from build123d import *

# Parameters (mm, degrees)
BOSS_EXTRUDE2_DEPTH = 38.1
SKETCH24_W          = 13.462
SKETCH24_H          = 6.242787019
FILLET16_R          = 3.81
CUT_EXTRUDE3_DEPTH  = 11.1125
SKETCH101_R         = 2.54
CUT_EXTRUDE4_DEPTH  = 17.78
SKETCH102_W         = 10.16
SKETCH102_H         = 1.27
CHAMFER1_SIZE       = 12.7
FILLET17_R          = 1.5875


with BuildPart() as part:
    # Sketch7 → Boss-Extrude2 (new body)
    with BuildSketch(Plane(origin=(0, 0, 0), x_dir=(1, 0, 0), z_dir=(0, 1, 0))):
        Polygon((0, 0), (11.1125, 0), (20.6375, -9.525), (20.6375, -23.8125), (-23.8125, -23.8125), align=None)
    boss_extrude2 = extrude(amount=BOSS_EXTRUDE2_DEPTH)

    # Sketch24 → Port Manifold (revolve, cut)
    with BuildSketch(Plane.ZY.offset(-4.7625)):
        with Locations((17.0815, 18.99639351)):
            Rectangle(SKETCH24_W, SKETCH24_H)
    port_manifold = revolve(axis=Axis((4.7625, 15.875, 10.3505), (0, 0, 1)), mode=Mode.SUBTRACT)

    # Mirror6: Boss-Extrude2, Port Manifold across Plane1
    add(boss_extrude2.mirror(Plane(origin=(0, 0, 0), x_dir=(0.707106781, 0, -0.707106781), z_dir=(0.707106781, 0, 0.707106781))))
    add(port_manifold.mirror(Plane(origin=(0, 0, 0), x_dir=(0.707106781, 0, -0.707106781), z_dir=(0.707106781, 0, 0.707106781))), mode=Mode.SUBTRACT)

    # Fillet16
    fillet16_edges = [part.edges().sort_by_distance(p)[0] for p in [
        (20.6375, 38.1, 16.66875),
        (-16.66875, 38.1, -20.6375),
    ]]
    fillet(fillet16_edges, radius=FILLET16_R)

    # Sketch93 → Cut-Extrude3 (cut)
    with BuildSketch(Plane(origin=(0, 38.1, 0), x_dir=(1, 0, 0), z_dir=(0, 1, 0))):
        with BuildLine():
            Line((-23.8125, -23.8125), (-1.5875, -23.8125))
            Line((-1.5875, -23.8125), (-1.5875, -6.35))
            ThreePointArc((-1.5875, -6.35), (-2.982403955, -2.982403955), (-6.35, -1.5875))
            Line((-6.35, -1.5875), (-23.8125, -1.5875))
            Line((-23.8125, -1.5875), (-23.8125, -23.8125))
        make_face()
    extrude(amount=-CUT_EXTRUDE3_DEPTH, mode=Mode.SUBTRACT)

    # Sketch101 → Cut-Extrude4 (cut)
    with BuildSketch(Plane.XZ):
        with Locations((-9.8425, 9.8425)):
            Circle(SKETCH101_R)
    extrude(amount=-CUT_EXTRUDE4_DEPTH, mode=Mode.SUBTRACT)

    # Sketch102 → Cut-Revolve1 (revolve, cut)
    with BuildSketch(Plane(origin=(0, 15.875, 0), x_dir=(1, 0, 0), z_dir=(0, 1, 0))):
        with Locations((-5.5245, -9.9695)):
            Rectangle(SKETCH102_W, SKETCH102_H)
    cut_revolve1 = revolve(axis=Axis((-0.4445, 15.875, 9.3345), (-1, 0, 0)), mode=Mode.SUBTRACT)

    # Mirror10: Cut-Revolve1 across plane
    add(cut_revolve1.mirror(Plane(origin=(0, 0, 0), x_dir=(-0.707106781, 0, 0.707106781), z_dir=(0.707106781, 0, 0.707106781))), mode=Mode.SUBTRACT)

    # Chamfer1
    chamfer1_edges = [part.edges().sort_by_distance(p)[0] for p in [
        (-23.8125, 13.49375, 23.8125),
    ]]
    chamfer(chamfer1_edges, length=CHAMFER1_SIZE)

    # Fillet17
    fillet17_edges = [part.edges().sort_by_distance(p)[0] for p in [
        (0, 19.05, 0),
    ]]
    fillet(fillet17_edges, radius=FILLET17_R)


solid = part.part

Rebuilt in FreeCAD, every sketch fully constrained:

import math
import FreeCAD as App
import Part
import Sketcher

V = App.Vector
Q = App.Units.Quantity


def edges_at(feature, points):
    """Names of the edges that pass closest to the given points."""
    edges = feature.Shape.Edges
    near = lambda p: min(range(len(edges)), key=lambda i: edges[i].distToShape(Part.Vertex(*p))[0])
    return sorted({f"Edge{near(p) + 1}" for p in points})

doc = App.newDocument("Part")
params = doc.addObject("Spreadsheet::Sheet", "Params")
for row, (alias, value) in enumerate([
    ("sketch1_width", "1.75 in"),
    ("sketch1_width2", "0.4375 in"),
    ("sketch1_height", "0.5625 in"),
    ("pad1_length", "1.5 in"),
    ("sketch2_height", "0.53 in"),
    ("groove_angle", "360 deg"),
    ("fillet_radius", "0.15 in"),
    ("sketch3_radius", "0.1875 in"),
    ("sketch3_width", "0.875 in"),
    ("pocket1_length", "0.4375 in"),
    ("sketch4_diameter", "0.2 in"),
    ("pocket2_length", "0.7 in"),
    ("sketch5_width", "0.4 in"),
    ("sketch5_height", "0.05 in"),
    ("groove2_angle", "360 deg"),
    ("chamfer_size", "0.5 in"),
    ("fillet2_radius", "0.0625 in"),
], start=1):
    params.set(f"A{row}", alias)
    params.set(f"B{row}", "=" + value)
    params.setAlias(f"B{row}", alias)

body = doc.addObject("PartDesign::Body", "Body")

# Sketch on XZ plane
sketch1 = body.newObject("Sketcher::SketchObject", "Sketch")
sketch1.AttachmentSupport = (doc.getObject("XZ_Plane"), [""])
sketch1.MapMode = "FlatFace"
sketch1.addGeometry(Part.LineSegment(V(11, 0, 0), V(0, 0, 0)), False)
sketch1.addGeometry(Part.LineSegment(V(0, 0, 0), V(-24, 24, 0)), False)
sketch1.addGeometry(Part.LineSegment(V(-24, 24, 0), V(21, 24, 0)), False)
sketch1.addGeometry(Part.LineSegment(V(21, 24, 0), V(21, 10, 0)), False)
sketch1.addGeometry(Part.LineSegment(V(21, 10, 0), V(11, 0, 0)), False)
sketch1.addConstraint(Sketcher.Constraint("Coincident", 0, 2, 1, 1))
sketch1.addConstraint(Sketcher.Constraint("Coincident", 1, 2, 2, 1))
sketch1.addConstraint(Sketcher.Constraint("Coincident", 2, 2, 3, 1))
sketch1.addConstraint(Sketcher.Constraint("Coincident", 3, 2, 4, 1))
sketch1.addConstraint(Sketcher.Constraint("Coincident", 4, 2, 0, 1))
sketch1.addConstraint(Sketcher.Constraint("Horizontal", 0))
sketch1.addConstraint(Sketcher.Constraint("Horizontal", 2))
sketch1.addConstraint(Sketcher.Constraint("Vertical", 3))
sketch1.addConstraint(Sketcher.Constraint("Coincident", 0, 2, -1, 1))
sketch1.addConstraint(Sketcher.Constraint("Perpendicular", 1, 4))
sketch1.addConstraint(Sketcher.Constraint("Angle", 1, Q("135 deg")))
sketch1.addConstraint(Sketcher.Constraint("DistanceX", 2, 1, 2, 2, Q("1.75 in")))
sketch1.addConstraint(Sketcher.Constraint("DistanceX", 0, 2, 0, 1, Q("0.4375 in")))
sketch1.addConstraint(Sketcher.Constraint("DistanceY", 3, 2, 3, 1, Q("0.5625 in")))
sketch1.setExpression("Constraints[11]", "Params.sketch1_width")
sketch1.setExpression("Constraints[12]", "Params.sketch1_width2")
sketch1.setExpression("Constraints[13]", "Params.sketch1_height")
pad1 = body.newObject("PartDesign::Pad", "Pad")
pad1.Profile = sketch1
pad1.setExpression("Length", "Params.pad1_length")
pad1.Reversed = True

# Sketch on YZ plane
sketch2 = body.newObject("Sketcher::SketchObject", "Sketch001")
sketch2.AttachmentSupport = (doc.getObject("YZ_Plane"), [""])
sketch2.MapMode = "FlatFace"
sketch2.AttachmentOffset = App.Placement(V(0, 0, 0.1875 * 25.4), App.Rotation())
sketch2.addGeometry(Part.LineSegment(V(22, 10, 0), V(16, 10, 0)), False)
sketch2.addGeometry(Part.LineSegment(V(16, 10, 0), V(16, 24, 0)), False)
sketch2.addGeometry(Part.LineSegment(V(16, 24, 0), V(22, 24, 0)), False)
sketch2.addGeometry(Part.LineSegment(V(22, 24, 0), V(22, 10, 0)), False)
sketch2.addGeometry(Part.LineSegment(V(16, 10, 0), V(16, 24, 0)), True)  # axis
sketch2.addConstraint(Sketcher.Constraint("Coincident", 0, 2, 1, 1))
sketch2.addConstraint(Sketcher.Constraint("Coincident", 1, 2, 2, 1))
sketch2.addConstraint(Sketcher.Constraint("Coincident", 2, 2, 3, 1))
sketch2.addConstraint(Sketcher.Constraint("Coincident", 3, 2, 0, 1))
sketch2.addConstraint(Sketcher.Constraint("Horizontal", 0))
sketch2.addConstraint(Sketcher.Constraint("Vertical", 1))
sketch2.addConstraint(Sketcher.Constraint("Horizontal", 2))
sketch2.addConstraint(Sketcher.Constraint("Vertical", 3))
sketch2.addConstraint(Sketcher.Constraint("Vertical", 4))
sketch2.addConstraint(Sketcher.Constraint("Coincident", 4, 1, 0, 2))
sketch2.addConstraint(Sketcher.Constraint("Horizontal", 2, 2, 4, 2))
sketch2.addConstraint(Sketcher.Constraint("DistanceY", 1, 1, 1, 2, Q("0.53 in")))
sketch2.addConstraint(Sketcher.Constraint("DistanceX", -1, 1, 0, 2, Q("0.625 in")))
sketch2.addConstraint(Sketcher.Constraint("DistanceY", -1, 1, 1, 2, Q("0.9375 in")))
sketch2.addConstraint(Sketcher.Constraint("DistanceX", 0, 2, 0, 1, 6.242787))
sketch2.setExpression("Constraints[11]", "Params.sketch2_height")
groove = body.newObject("PartDesign::Groove", "Groove")
groove.Profile = sketch2
groove.ReferenceAxis = (sketch2, ["Axis0"])
groove.setExpression("Angle", "Params.groove_angle")
doc.recompute()

datumplane = body.newObject("PartDesign::Plane", "DatumPlane")
datumplane.Placement = App.Placement(V(0, 0, 0), App.Rotation(V(-0.707106781, 0, 0.707106781), V(0, -1, 0), V(0.707106781, 0, 0.707106781), "ZXY"))
mirrored = body.newObject("PartDesign::Mirrored", "Mirrored")
mirrored.Originals = [pad1, groove]
mirrored.MirrorPlane = (datumplane, [""])
body.Tip = mirrored
doc.recompute()

fillet = body.newObject("PartDesign::Fillet", "Fillet")
fillet.Base = (mirrored, edges_at(mirrored, [(20.637, 38.1, 16.669), (-16.669, 38.1, -20.637)]))
fillet.setExpression("Radius", "Params.fillet_radius")

# Sketch on XZ plane
sketch3 = body.newObject("Sketcher::SketchObject", "Sketch002")
sketch3.AttachmentSupport = (doc.getObject("XZ_Plane"), [""])
sketch3.MapMode = "FlatFace"
sketch3.AttachmentOffset = App.Placement(V(0, 0, -1.5 * 25.4), App.Rotation())
sketch3.addGeometry(Part.LineSegment(V(-23.8, 23.8, 0), V(-1.6, 23.8, 0)), False)
sketch3.addGeometry(Part.LineSegment(V(-1.6, 23.8, 0), V(-1.6, 6.3, 0)), False)
sketch3.addGeometry(Part.ArcOfCircle(Part.Circle(V(-6.4, 6.4, 0), V(0, 0, 1), 4.8), math.radians(-90), math.radians(0)), False)
sketch3.addGeometry(Part.LineSegment(V(-6.3, 1.6, 0), V(-23.8, 1.6, 0)), False)
sketch3.addGeometry(Part.LineSegment(V(-23.8, 1.6, 0), V(-23.8, 23.8, 0)), False)
sketch3.addConstraint(Sketcher.Constraint("Coincident", 0, 2, 1, 1))
sketch3.addConstraint(Sketcher.Constraint("Tangent", 1, 2, 2, 2))
sketch3.addConstraint(Sketcher.Constraint("Tangent", 2, 1, 3, 1))
sketch3.addConstraint(Sketcher.Constraint("Coincident", 3, 2, 4, 1))
sketch3.addConstraint(Sketcher.Constraint("Coincident", 4, 2, 0, 1))
sketch3.addConstraint(Sketcher.Constraint("Horizontal", 0))
sketch3.addConstraint(Sketcher.Constraint("Vertical", 1))
sketch3.addConstraint(Sketcher.Constraint("Horizontal", 3))
sketch3.addConstraint(Sketcher.Constraint("Vertical", 4))
sketch3.addConstraint(Sketcher.Constraint("Equal", 3, 1))
sketch3.addConstraint(Sketcher.Constraint("Radius", 2, Q("0.1875 in")))
sketch3.addConstraint(Sketcher.Constraint("DistanceX", 0, 1, 0, 2, Q("0.875 in")))
sketch3.addConstraint(Sketcher.Constraint("DistanceX", 2, 3, -1, 1, Q("0.25 in")))
sketch3.addConstraint(Sketcher.Constraint("DistanceY", -1, 1, 2, 3, Q("0.25 in")))
sketch3.setExpression("Constraints[10]", "Params.sketch3_radius")
sketch3.setExpression("Constraints[11]", "Params.sketch3_width")
pocket1 = body.newObject("PartDesign::Pocket", "Pocket")
pocket1.Profile = sketch3
pocket1.setExpression("Length", "Params.pocket1_length")
pocket1.Reversed = True

# Sketch on XZ plane
sketch4 = body.newObject("Sketcher::SketchObject", "Sketch003")
sketch4.AttachmentSupport = (doc.getObject("XZ_Plane"), [""])
sketch4.MapMode = "FlatFace"
sketch4.addGeometry(Part.Circle(V(-9.8, 9.8, 0), V(0, 0, 1), 2.5), False)
sketch4.addConstraint(Sketcher.Constraint("Diameter", 0, Q("0.2 in")))
sketch4.addConstraint(Sketcher.Constraint("DistanceX", 0, 3, -1, 1, Q("0.3875 in")))
sketch4.addConstraint(Sketcher.Constraint("DistanceY", -1, 1, 0, 3, Q("0.3875 in")))
sketch4.setExpression("Constraints[0]", "Params.sketch4_diameter")
pocket2 = body.newObject("PartDesign::Pocket", "Pocket001")
pocket2.Profile = sketch4
pocket2.setExpression("Length", "Params.pocket2_length")

# Sketch on XZ plane
sketch5 = body.newObject("Sketcher::SketchObject", "Sketch004")
sketch5.AttachmentSupport = (doc.getObject("XZ_Plane"), [""])
sketch5.MapMode = "FlatFace"
sketch5.AttachmentOffset = App.Placement(V(0, 0, -0.625 * 25.4), App.Rotation())
sketch5.addGeometry(Part.LineSegment(V(-10.6, 9.3, 0), V(-10.6, 10.6, 0)), False)
sketch5.addGeometry(Part.LineSegment(V(-10.6, 10.6, 0), V(-0.4, 10.6, 0)), False)
sketch5.addGeometry(Part.LineSegment(V(-0.4, 10.6, 0), V(-0.4, 9.3, 0)), False)
sketch5.addGeometry(Part.LineSegment(V(-0.4, 9.3, 0), V(-10.6, 9.3, 0)), False)
sketch5.addGeometry(Part.LineSegment(V(-0.4, 9.3, 0), V(-10.6, 9.3, 0)), True)  # axis
sketch5.addConstraint(Sketcher.Constraint("Coincident", 0, 2, 1, 1))
sketch5.addConstraint(Sketcher.Constraint("Coincident", 1, 2, 2, 1))
sketch5.addConstraint(Sketcher.Constraint("Coincident", 2, 2, 3, 1))
sketch5.addConstraint(Sketcher.Constraint("Coincident", 3, 2, 0, 1))
sketch5.addConstraint(Sketcher.Constraint("Vertical", 0))
sketch5.addConstraint(Sketcher.Constraint("Horizontal", 1))
sketch5.addConstraint(Sketcher.Constraint("Vertical", 2))
sketch5.addConstraint(Sketcher.Constraint("Horizontal", 3))
sketch5.addConstraint(Sketcher.Constraint("Horizontal", 4))
sketch5.addConstraint(Sketcher.Constraint("Coincident", 4, 1, 2, 2))
sketch5.addConstraint(Sketcher.Constraint("Vertical", 0, 2, 4, 2))
sketch5.addConstraint(Sketcher.Constraint("DistanceX", 1, 1, 1, 2, Q("0.4 in")))
sketch5.addConstraint(Sketcher.Constraint("DistanceY", 0, 1, 0, 2, Q("0.05 in")))
sketch5.addConstraint(Sketcher.Constraint("DistanceX", 0, 2, -1, 1, Q("0.4175 in")))
sketch5.addConstraint(Sketcher.Constraint("DistanceY", -1, 1, 0, 2, Q("0.4175 in")))
sketch5.setExpression("Constraints[11]", "Params.sketch5_width")
sketch5.setExpression("Constraints[12]", "Params.sketch5_height")
groove2 = body.newObject("PartDesign::Groove", "Groove001")
groove2.Profile = sketch5
groove2.ReferenceAxis = (sketch5, ["Axis0"])
groove2.setExpression("Angle", "Params.groove2_angle")
doc.recompute()

datumplane2 = body.newObject("PartDesign::Plane", "DatumPlane001")
datumplane2.Placement = App.Placement(V(0, 0, 0), App.Rotation(V(-0.707106781, 0, 0.707106781), V(0, -1, 0), V(0.707106781, 0, 0.707106781), "ZXY"))
mirrored2 = body.newObject("PartDesign::Mirrored", "Mirrored001")
mirrored2.Originals = [groove2]
mirrored2.MirrorPlane = (datumplane2, [""])
body.Tip = mirrored2
doc.recompute()

chamfer = body.newObject("PartDesign::Chamfer", "Chamfer")
chamfer.Base = (mirrored2, edges_at(mirrored2, [(-23.812, 13.494, 23.812)]))
chamfer.setExpression("Size", "Params.chamfer_size")
doc.recompute()

fillet2 = body.newObject("PartDesign::Fillet", "Fillet001")
fillet2.Base = (chamfer, edges_at(chamfer, [(0, 19.05, 0)]))
fillet2.setExpression("Radius", "Params.fillet2_radius")

doc.recompute()
